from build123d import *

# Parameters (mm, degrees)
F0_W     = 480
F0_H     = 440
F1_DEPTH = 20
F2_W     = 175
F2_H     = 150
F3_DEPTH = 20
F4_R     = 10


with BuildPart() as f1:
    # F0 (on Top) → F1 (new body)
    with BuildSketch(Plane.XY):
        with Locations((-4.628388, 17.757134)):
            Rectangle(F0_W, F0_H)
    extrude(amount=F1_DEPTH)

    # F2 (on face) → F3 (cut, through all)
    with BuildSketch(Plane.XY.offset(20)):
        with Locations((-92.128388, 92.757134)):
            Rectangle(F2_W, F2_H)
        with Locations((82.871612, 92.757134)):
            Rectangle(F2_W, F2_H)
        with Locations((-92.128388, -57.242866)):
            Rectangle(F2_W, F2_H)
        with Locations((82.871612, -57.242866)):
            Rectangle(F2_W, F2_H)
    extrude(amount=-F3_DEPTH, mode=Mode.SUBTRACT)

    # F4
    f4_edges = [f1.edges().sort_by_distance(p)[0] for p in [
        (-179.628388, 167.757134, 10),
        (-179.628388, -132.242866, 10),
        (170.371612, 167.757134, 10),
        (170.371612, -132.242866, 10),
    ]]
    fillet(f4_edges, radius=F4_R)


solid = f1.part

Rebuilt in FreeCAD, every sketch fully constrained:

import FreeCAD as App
import Part
import Sketcher
from FreeCAD import Vector
Q = App.Units.Quantity


def edges_at(feature, points):
    """Names of the edges that pass closest to the given points."""
    edges = feature.Shape.Edges
    near = lambda p: min(range(len(edges)), key=lambda i: edges[i].distToShape(Part.Vertex(*p))[0])
    return sorted({f"Edge{near(p) + 1}" for p in points})


def add_polygon(sketch, points):
    """Adds a closed chain of lines whose ends are joined by coincident constraints."""
    first, n = sketch.GeometryCount, len(points)
    for a, b in zip(points, points[1:] + points[:1]):
        sketch.addGeometry(Part.LineSegment(App.Vector(*a, 0), App.Vector(*b, 0)), False)
    for i in range(n):
        sketch.addConstraint(Sketcher.Constraint("Coincident", first + i, 2, first + (i + 1) % n, 1))

doc = App.newDocument("Part")
body = doc.addObject("PartDesign::Body", "Body")

# Sketch on XY plane
sketch1 = body.newObject("Sketcher::SketchObject", "Sketch")
sketch1.AttachmentSupport = (doc.getObject("XY_Plane"), [""])
sketch1.MapMode = "FlatFace"
add_polygon(sketch1, [(-245, 238), (-245, -202), (235, -202), (235, 238)])  # lines 0-3
sketch1.addConstraint(Sketcher.Constraint("Vertical", 0))
sketch1.addConstraint(Sketcher.Constraint("Horizontal", 1))
sketch1.addConstraint(Sketcher.Constraint("Vertical", 2))
sketch1.addConstraint(Sketcher.Constraint("Horizontal", 3))
sketch1.addConstraint(Sketcher.Constraint("DistanceX", 1, 1, 1, 2, Q("480 mm")))
sketch1.addConstraint(Sketcher.Constraint("DistanceY", 0, 2, 0, 1, Q("440 mm")))
sketch1.addConstraint(Sketcher.Constraint("DistanceX", 0, 2, -1, 1, Q("244.628388 mm")))
sketch1.addConstraint(Sketcher.Constraint("DistanceY", 0, 2, -1, 1, Q("202.242866 mm")))
pad1 = body.newObject("PartDesign::Pad", "Pad")
pad1.Profile = sketch1
pad1.Length = 20

# Sketch on XY plane
sketch2 = body.newObject("Sketcher::SketchObject", "Sketch001")
sketch2.AttachmentSupport = (doc.getObject("XY_Plane"), [""])
sketch2.MapMode = "FlatFace"
sketch2.AttachmentOffset = App.Placement(Vector(0, 0, 20), App.Rotation())
add_polygon(sketch2, [(-180, 168), (-180, -132), (170, -132), (170, 168)])  # lines 0-3
sketch2.addConstraint(Sketcher.Constraint("Vertical", 0))
sketch2.addConstraint(Sketcher.Constraint("Horizontal", 1))
sketch2.addConstraint(Sketcher.Constraint("Vertical", 2))
sketch2.addConstraint(Sketcher.Constraint("Horizontal", 3))
sketch2.addConstraint(Sketcher.Constraint("DistanceX", 1, 1, 1, 2, Q("350 mm")))
sketch2.addConstraint(Sketcher.Constraint("DistanceY", 0, 2, 0, 1, Q("300 mm")))
sketch2.addConstraint(Sketcher.Constraint("DistanceX", 0, 2, -1, 1, Q("179.628388 mm")))
sketch2.addConstraint(Sketcher.Constraint("DistanceY", 0, 2, -1, 1, Q("132.242866 mm")))
pocket1 = body.newObject("PartDesign::Pocket", "Pocket")
pocket1.Profile = sketch2
pocket1.Type = "ThroughAll"
doc.recompute()

fillet = body.newObject("PartDesign::Fillet", "Fillet")
fillet.Base = (pocket1, edges_at(pocket1, [
    (-179.628, 167.757, 10),
    (-179.628, -132.243, 10),
    (170.372, 167.757, 10),
    (170.372, -132.243, 10),
]))
fillet.Radius = 10

doc.recompute()
